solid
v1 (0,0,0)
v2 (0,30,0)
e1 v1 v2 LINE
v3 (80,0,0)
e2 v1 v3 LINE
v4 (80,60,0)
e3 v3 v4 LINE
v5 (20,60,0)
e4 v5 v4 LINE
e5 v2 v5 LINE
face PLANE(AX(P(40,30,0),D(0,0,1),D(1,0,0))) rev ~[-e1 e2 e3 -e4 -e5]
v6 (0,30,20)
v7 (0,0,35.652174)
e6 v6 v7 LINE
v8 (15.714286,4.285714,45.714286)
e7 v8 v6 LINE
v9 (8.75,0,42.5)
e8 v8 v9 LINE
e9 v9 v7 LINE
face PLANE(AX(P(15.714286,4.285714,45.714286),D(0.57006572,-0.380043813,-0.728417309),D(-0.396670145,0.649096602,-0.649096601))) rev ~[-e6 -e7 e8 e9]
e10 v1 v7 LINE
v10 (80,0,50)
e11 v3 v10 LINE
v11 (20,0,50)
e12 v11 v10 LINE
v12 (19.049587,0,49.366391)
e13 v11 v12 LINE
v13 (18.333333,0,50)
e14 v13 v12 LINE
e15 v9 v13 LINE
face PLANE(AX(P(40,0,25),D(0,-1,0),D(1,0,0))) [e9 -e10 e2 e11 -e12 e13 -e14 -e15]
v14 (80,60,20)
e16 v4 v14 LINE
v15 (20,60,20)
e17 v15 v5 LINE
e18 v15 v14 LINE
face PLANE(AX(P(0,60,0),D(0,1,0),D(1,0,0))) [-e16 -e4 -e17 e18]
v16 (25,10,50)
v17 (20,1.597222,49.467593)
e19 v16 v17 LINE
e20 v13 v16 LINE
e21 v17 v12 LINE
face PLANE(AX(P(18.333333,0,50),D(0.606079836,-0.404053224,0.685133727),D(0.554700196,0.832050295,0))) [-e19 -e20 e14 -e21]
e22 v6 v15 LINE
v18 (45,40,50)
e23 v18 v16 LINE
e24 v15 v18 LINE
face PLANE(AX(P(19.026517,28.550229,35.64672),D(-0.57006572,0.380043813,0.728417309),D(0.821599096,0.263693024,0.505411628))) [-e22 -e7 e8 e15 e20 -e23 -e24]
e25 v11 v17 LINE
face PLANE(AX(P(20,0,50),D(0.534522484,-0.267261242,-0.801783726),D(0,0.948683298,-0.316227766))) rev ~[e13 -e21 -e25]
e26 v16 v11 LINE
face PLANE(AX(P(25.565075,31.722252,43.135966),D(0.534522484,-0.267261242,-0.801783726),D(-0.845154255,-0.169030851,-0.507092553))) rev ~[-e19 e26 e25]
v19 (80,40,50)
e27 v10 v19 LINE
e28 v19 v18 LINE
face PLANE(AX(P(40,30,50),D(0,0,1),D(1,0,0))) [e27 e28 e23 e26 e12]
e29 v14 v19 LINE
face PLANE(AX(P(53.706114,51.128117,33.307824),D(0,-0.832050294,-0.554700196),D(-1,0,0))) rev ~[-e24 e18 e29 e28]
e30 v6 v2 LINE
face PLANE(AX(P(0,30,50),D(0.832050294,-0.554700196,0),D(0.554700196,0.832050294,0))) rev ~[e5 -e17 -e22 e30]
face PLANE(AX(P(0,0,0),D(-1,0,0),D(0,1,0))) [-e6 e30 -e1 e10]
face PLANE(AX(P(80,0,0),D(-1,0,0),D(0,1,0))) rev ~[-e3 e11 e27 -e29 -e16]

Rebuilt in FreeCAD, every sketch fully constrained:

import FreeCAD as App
import Part
import Sketcher

doc = App.newDocument("Part")
params = doc.addObject("Spreadsheet::Sheet", "Params")
for row, (alias, value) in enumerate([
    ("sketch1_width", "80 mm"),
    ("sketch1_height", "60 mm"),
    ("pad1_length", "50 mm"),
    ("sketch2_width", "20 mm"),
    ("sketch2_height", "30 mm"),
    ("pocket1_length", "50 mm"),
    ("sketch3_width", "20 mm"),
    ("pocket2_length", "124 mm"),
    ("pocket3_length", "124 mm"),
    ("pocket4_length", "124 mm"),
    ("pocket5_length", "124 mm"),
    ("pocket6_length", "124 mm"),
    ("pocket7_length", "124 mm"),
    ("pocket8_length", "124 mm"),
    ("pocket9_length", "124 mm"),
    ("sketch11_width", "60 mm"),
    ("sketch11_width2", "40 mm"),
    ("pocket10_length", "124 mm"),
    ("pocket11_length", "124 mm"),
    ("pocket12_length", "124 mm"),
    ("pocket13_length", "124 mm"),
    ("pocket14_length", "124 mm"),
    ("pad2_length", "5 mm"),
    ("sketch17_width", "80 mm"),
    ("sketch17_height", "50 mm"),
    ("pocket15_length", "37 mm"),
], start=1):
    params.set(f"A{row}", alias)
    params.set(f"B{row}", "=" + value)
    params.setAlias(f"B{row}", alias)

body = doc.addObject("PartDesign::Body", "Body")
body.AllowCompound = True

# Sketch on XY plane
sketch1 = body.newObject("Sketcher::SketchObject", "Sketch")
sketch1.AttachmentSupport = (doc.getObject("XY_Plane"), [""])
sketch1.MapMode = "FlatFace"
sketch1.addGeometry([
    Part.LineSegment(App.Vector(0, 60, 0), App.Vector(0, 0, 0)),
    Part.LineSegment(App.Vector(0, 0, 0), App.Vector(80, 0, 0)),
    Part.LineSegment(App.Vector(80, 0, 0), App.Vector(80, 60, 0)),
    Part.LineSegment(App.Vector(80, 60, 0), App.Vector(0, 60, 0)),
], False)
sketch1.addConstraint([
    Sketcher.Constraint("Coincident", 0, 2, 1, 1),
    Sketcher.Constraint("Coincident", 1, 2, 2, 1),
    Sketcher.Constraint("Coincident", 2, 2, 3, 1),
    Sketcher.Constraint("Coincident", 3, 2, 0, 1),
    Sketcher.Constraint("Vertical", 0),
    Sketcher.Constraint("Horizontal", 1),
    Sketcher.Constraint("Vertical", 2),
    Sketcher.Constraint("Horizontal", 3),
    Sketcher.Constraint("Coincident", 0, 2, -1, 1),
    Sketcher.Constraint("DistanceX", 1, 1, 1, 2, 80.0),
    Sketcher.Constraint("DistanceY", 0, 2, 0, 1, 60.0),
])
sketch1.setExpression("Constraints[9]", "Params.sketch1_width")
sketch1.setExpression("Constraints[10]", "Params.sketch1_height")
pad1 = body.newObject("PartDesign::Pad", "Pad")
pad1.Profile = sketch1
pad1.setExpression("Length", "Params.pad1_length")

# Sketch on XY plane
sketch2 = body.newObject("Sketcher::SketchObject", "Sketch001")
sketch2.AttachmentSupport = (doc.getObject("XY_Plane"), [""])
sketch2.MapMode = "FlatFace"
sketch2.AttachmentOffset = App.Placement(App.Vector(0, 0, 50), App.Rotation())
sketch2.addGeometry([
    Part.LineSegment(App.Vector(0, 30, 0), App.Vector(20, 60, 0)),
    Part.LineSegment(App.Vector(20, 60, 0), App.Vector(0, 60, 0)),
    Part.LineSegment(App.Vector(0, 60, 0), App.Vector(0, 30, 0)),
], False)
sketch2.addConstraint([
    Sketcher.Constraint("Coincident", 0, 2, 1, 1),
    Sketcher.Constraint("Coincident", 1, 2, 2, 1),
    Sketcher.Constraint("Coincident", 2, 2, 0, 1),
    Sketcher.Constraint("Horizontal", 1),
    Sketcher.Constraint("Vertical", 2),
    Sketcher.Constraint("PointOnObject", 1, 2, -2),
    Sketcher.Constraint("DistanceX", 1, 2, 1, 1, 20.0),
    Sketcher.Constraint("DistanceY", 2, 2, 2, 1, 30.0),
    Sketcher.Constraint("DistanceY", -1, 1, 0, 2, 60.0),
])
sketch2.setExpression("Constraints[6]", "Params.sketch2_width")
sketch2.setExpression("Constraints[7]", "Params.sketch2_height")
pocket1 = body.newObject("PartDesign::Pocket", "Pocket")
pocket1.Profile = sketch2
pocket1.setExpression("Length", "Params.pocket1_length")

# Sketch on YZ plane
sketch3 = body.newObject("Sketcher::SketchObject", "Sketch002")
sketch3.AttachmentSupport = (doc.getObject("YZ_Plane"), [""])
sketch3.MapMode = "FlatFace"
sketch3.AttachmentOffset = App.Placement(App.Vector(0, 0, 80), App.Rotation())
sketch3.addGeometry([
    Part.LineSegment(App.Vector(40, 50, 0), App.Vector(60, 30, 0)),
    Part.LineSegment(App.Vector(60, 30, 0), App.Vector(60, 50, 0)),
    Part.LineSegment(App.Vector(60, 50, 0), App.Vector(40, 50, 0)),
], False)
sketch3.addConstraint([
    Sketcher.Constraint("Coincident", 0, 2, 1, 1),
    Sketcher.Constraint("Coincident", 1, 2, 2, 1),
    Sketcher.Constraint("Coincident", 2, 2, 0, 1),
    Sketcher.Constraint("Vertical", 1),
    Sketcher.Constraint("Horizontal", 2),
    Sketcher.Constraint("Equal", 2, 1),
    Sketcher.Constraint("DistanceX", 2, 2, 2, 1, 20.0),
    Sketcher.Constraint("DistanceX", -1, 1, 0, 2, 60.0),
    Sketcher.Constraint("DistanceY", -1, 1, 0, 2, 30.0),
])
sketch3.setExpression("Constraints[6]", "Params.sketch3_width")
pocket2 = body.newObject("PartDesign::Pocket", "Pocket001")
pocket2.Profile = sketch3
pocket2.setExpression("Length", "Params.pocket2_length")

# Sketch on an angled plane
sketch4 = body.newObject("Sketcher::SketchObject", "Sketch003")
sketch4.Placement = App.Placement(App.Vector(-15.714286, 7.857143, 23.571429), App.Rotation(App.Vector(0.845154255, 0.169030851, 0.507092553), App.Vector(0, 0.948683299, -0.316227766), App.Vector(-0.534522484, 0.267261242, 0.801783726), "ZXY"))
sketch4.addGeometry([
    Part.LineSegment(App.Vector(66, 22, 0), App.Vector(42, 47, 0)),
    Part.LineSegment(App.Vector(42, 47, 0), App.Vector(42, -16, 0)),
    Part.LineSegment(App.Vector(42, -16, 0), App.Vector(66, 22, 0)),
], False)
sketch4.addConstraint([
    Sketcher.Constraint("Coincident", 0, 2, 1, 1),
    Sketcher.Constraint("Coincident", 1, 2, 2, 1),
    Sketcher.Constraint("Coincident", 2, 2, 0, 1),
    Sketcher.Constraint("Vertical", 1),
    Sketcher.Constraint("Distance", 2, 44.72136),
    Sketcher.Constraint("DistanceY", 1, 2, 1, 1, 63.245553),
    Sketcher.Constraint("DistanceY", 1, 2, -1, 1, 15.811388),
    Sketcher.Constraint("DistanceX", -1, 1, 2, 2, 65.922032),
    Sketcher.Constraint("DistanceX", 0, 2, 2, 2, 23.664319),
])
pocket3 = body.newObject("PartDesign::Pocket", "Pocket002")
pocket3.Profile = sketch4
pocket3.setExpression("Length", "Params.pocket3_length")
pocket3.Reversed = True

# Sketch on an angled plane
sketch5 = body.newObject("Sketcher::SketchObject", "Sketch004")
sketch5.Placement = App.Placement(App.Vector(35.714286, 7.142857, 21.428571), App.Rotation(App.Vector(0.497245158, 0.099449032, -0.861891607), App.Vector(-0.196116135, 0.980580676, 0), App.Vector(0.845154255, 0.169030851, 0.507092553), "ZXY"))
sketch5.addGeometry([
    Part.LineSegment(App.Vector(-33, 37, 0), App.Vector(-33, -4, 0)),
    Part.LineSegment(App.Vector(-33, -4, 0), App.Vector(-10, 55, 0)),
    Part.LineSegment(App.Vector(-10, 55, 0), App.Vector(-33, 37, 0)),
], False)
sketch5.addConstraint([
    Sketcher.Constraint("Coincident", 0, 2, 1, 1),
    Sketcher.Constraint("Coincident", 1, 2, 2, 1),
    Sketcher.Constraint("Coincident", 2, 2, 0, 1),
    Sketcher.Constraint("Vertical", 0),
    Sketcher.Constraint("DistanceY", 0, 2, 0, 1, 40.792156),
    Sketcher.Constraint("DistanceY", 0, 2, 1, 2, 58.834841),
    Sketcher.Constraint("Distance", 1, 63.245553),
    Sketcher.Constraint("DistanceX", 0, 2, -1, 1, 33.149677),
    Sketcher.Constraint("DistanceY", 0, 2, -1, 1, 3.922323),
])
pocket4 = body.newObject("PartDesign::Pocket", "Pocket003")
pocket4.Profile = sketch5
pocket4.setExpression("Length", "Params.pocket4_length")

# Sketch on an angled plane
sketch6 = body.newObject("Sketcher::SketchObject", "Sketch005")
sketch6.Placement = App.Placement(App.Vector(-16.483516, -3.296703, 28.571429), App.Rotation(App.Vector(-0.867610081, 0.056996283, -0.493967783), App.Vector(0, 0.993408935, 0.114624108), App.Vector(0.497245158, 0.099449032, -0.861891607), "ZXY"))
sketch6.addGeometry([
    Part.LineSegment(App.Vector(-26, 44, 0), App.Vector(-33, 45, 0)),  # 0
    Part.LineSegment(App.Vector(-33, 45, 0), App.Vector(-42, 6, 0)),  # 1
    Part.LineSegment(App.Vector(-42, 6, 0), App.Vector(-19, 4, 0)),  # 2
    Part.LineSegment(App.Vector(-19, 4, 0), App.Vector(-19, 35, 0)),  # 3
    Part.LineSegment(App.Vector(-19, 35, 0), App.Vector(-26, 44, 0)),  # 4
], False)
sketch6.addConstraint([
    Sketcher.Constraint("Coincident", 0, 2, 1, 1),
    Sketcher.Constraint("Coincident", 1, 2, 2, 1),
    Sketcher.Constraint("Coincident", 2, 2, 3, 1),
    Sketcher.Constraint("Coincident", 3, 2, 4, 1),
    Sketcher.Constraint("Coincident", 4, 2, 0, 1),
    Sketcher.Constraint("Vertical", 3),
    Sketcher.Constraint("Perpendicular", 0, 1),
    Sketcher.Constraint("DistanceY", 3, 2, 0, 2, 10.859899),
    Sketcher.Constraint("Distance", 0, 7.281329),
    Sketcher.Constraint("Distance", 2, 23.08974),
    Sketcher.Constraint("Distance", 4, 11.41498),
    Sketcher.Constraint("DistanceY", 3, 1, 3, 2, 30.199044),
    Sketcher.Constraint("DistanceX", 0, 2, -1, 1, 32.829859),
    Sketcher.Constraint("DistanceX", 1, 2, -1, 1, 42.050591),
    Sketcher.Constraint("DistanceY", -1, 1, 2, 2, 4.40862),
])
pocket5 = body.newObject("PartDesign::Pocket", "Pocket004")
pocket5.Profile = sketch6
pocket5.setExpression("Length", "Params.pocket5_length")

# Sketch on an angled plane
sketch7 = body.newObject("Sketcher::SketchObject", "Sketch006")
sketch7.Placement = App.Placement(App.Vector(-22.751323, 35.26455, 26.164021), App.Rotation(App.Vector(0.887896271, 0.369460193, 0.274115627), App.Vector(0, -0.595846924, 0.803098028), App.Vector(0.460043706, -0.713067745, -0.529050262), "ZXY"))
sketch7.addGeometry([
    Part.LineSegment(App.Vector(39, 16, 0), App.Vector(32, 14, 0)),
    Part.LineSegment(App.Vector(32, 14, 0), App.Vector(48, -12, 0)),
    Part.LineSegment(App.Vector(48, -12, 0), App.Vector(39, 16, 0)),
], False)
sketch7.addConstraint([
    Sketcher.Constraint("Coincident", 0, 2, 1, 1),
    Sketcher.Constraint("Coincident", 1, 2, 2, 1),
    Sketcher.Constraint("Coincident", 2, 2, 0, 1),
    Sketcher.Constraint("Perpendicular", 0, 2),
    Sketcher.Constraint("Distance", 1, 30.282301),
    Sketcher.Constraint("DistanceY", 1, 2, 2, 2, 27.978899),
    Sketcher.Constraint("Distance", 0, 7.281329),
    Sketcher.Constraint("DistanceY", -1, 1, 0, 2, 14.089089),
    Sketcher.Constraint("DistanceX", -1, 1, 0, 2, 32.208128),
])
pocket6 = body.newObject("PartDesign::Pocket", "Pocket005")
pocket6.Profile = sketch7
pocket6.setExpression("Length", "Params.pocket6_length")

# Sketch on an angled plane
sketch8 = body.newObject("Sketcher::SketchObject", "Sketch007")
sketch8.Placement = App.Placement(App.Vector(-0.962963, -2.407407, 2.407407), App.Rotation(App.Vector(0.962250449, -0.19245009, 0.19245009), App.Vector(0, -0.707106781, -0.707106781), App.Vector(0.272165527, 0.680413817, -0.680413817), "ZXY"))
sketch8.addGeometry([
    Part.LineSegment(App.Vector(7.1, -60.2, 0), App.Vector(8.6, -63.6, 0)),
    Part.LineSegment(App.Vector(8.6, -63.6, 0), App.Vector(13.5, -63.6, 0)),
    Part.LineSegment(App.Vector(13.5, -63.6, 0), App.Vector(7.1, -60.2, 0)),
], False)
sketch8.addConstraint([
    Sketcher.Constraint("Coincident", 0, 2, 1, 1),
    Sketcher.Constraint("Coincident", 1, 2, 2, 1),
    Sketcher.Constraint("Coincident", 2, 2, 0, 1),
    Sketcher.Constraint("Horizontal", 1),
    Sketcher.Constraint("Distance", 0, 3.792449),
    Sketcher.Constraint("Distance", 2, 7.281329),
    Sketcher.Constraint("DistanceX", 1, 1, 1, 2, 4.890496),
    Sketcher.Constraint("DistanceX", -1, 1, 0, 2, 8.58101),
    Sketcher.Constraint("DistanceY", 0, 2, -1, 1, 63.63961),
])
pocket7 = body.newObject("PartDesign::Pocket", "Pocket006")
pocket7.Profile = sketch8
pocket7.setExpression("Length", "Params.pocket7_length")

# Sketch on an angled plane
sketch9 = body.newObject("Sketcher::SketchObject", "Sketch008")
sketch9.Placement = App.Placement(App.Vector(-15.346075, 7.943851, 1.805421), App.Rotation(App.Vector(-0.092282328, 0.047769676, -0.994586361), App.Vector(0.459707125, 0.888070582, 0), App.Vector(0.883262889, -0.457218437, -0.103913281), "ZXY"))
sketch9.addGeometry([
    Part.LineSegment(App.Vector(-44.7, 37.1, 0), App.Vector(-47.5, 39.7, 0)),
    Part.LineSegment(App.Vector(-47.5, 39.7, 0), App.Vector(-48.5, 38.7, 0)),
    Part.LineSegment(App.Vector(-48.5, 38.7, 0), App.Vector(-48.5, 37.4, 0)),
    Part.LineSegment(App.Vector(-48.5, 37.4, 0), App.Vector(-44.7, 37.1, 0)),
], False)
sketch9.addConstraint([
    Sketcher.Constraint("Coincident", 0, 2, 1, 1),
    Sketcher.Constraint("Coincident", 1, 2, 2, 1),
    Sketcher.Constraint("Coincident", 2, 2, 3, 1),
    Sketcher.Constraint("Coincident", 3, 2, 0, 1),
    Sketcher.Constraint("Vertical", 2),
    Sketcher.Constraint("Perpendicular", 0, 1),
    Sketcher.Constraint("DistanceX", 1, 2, 0, 2, 0.946299),
    Sketcher.Constraint("Distance", 0, 3.792449),
    Sketcher.Constraint("Distance", 1, 1.383241),
    Sketcher.Constraint("DistanceY", 2, 2, 2, 1, 1.276766),
    Sketcher.Constraint("DistanceX", 0, 2, -1, 1, 47.510608),
    Sketcher.Constraint("DistanceY", -1, 1, 2, 2, 37.426149),
])
pocket8 = body.newObject("PartDesign::Pocket", "Pocket007")
pocket8.Profile = sketch9
pocket8.setExpression("Length", "Params.pocket8_length")

# Sketch on an angled plane
sketch10 = body.newObject("Sketcher::SketchObject", "Sketch009")
sketch10.Placement = App.Placement(App.Vector(-7.230769, 36.153846, 0), App.Rotation(App.Vector(0.980580676, 0.196116135, 0), App.Vector(0, 0, 1.000000001), App.Vector(0.196116135, -0.980580676, 0), "ZXY"))
sketch10.addGeometry([
    Part.LineSegment(App.Vector(13.83, 50, 0), App.Vector(13.34, 50, 0)),
    Part.LineSegment(App.Vector(13.34, 50, 0), App.Vector(13.34, 46.31, 0)),
    Part.LineSegment(App.Vector(13.34, 46.31, 0), App.Vector(13.83, 50, 0)),
], False)
sketch10.addConstraint([
    Sketcher.Constraint("Coincident", 0, 2, 1, 1),
    Sketcher.Constraint("Coincident", 1, 2, 2, 1),
    Sketcher.Constraint("Coincident", 2, 2, 0, 1),
    Sketcher.Constraint("Horizontal", 0),
    Sketcher.Constraint("Vertical", 1),
    Sketcher.Constraint("DistanceY", -1, 1, 0, 2, 50.0),
    Sketcher.Constraint("DistanceX", 0, 2, 0, 1, 0.494151),
    Sketcher.Constraint("DistanceY", 1, 2, 1, 1, 3.692308),
    Sketcher.Constraint("DistanceX", -1, 1, 2, 2, 13.830048),
])
pocket9 = body.newObject("PartDesign::Pocket", "Pocket008")
pocket9.Profile = sketch10
pocket9.setExpression("Length", "Params.pocket9_length")

# Sketch on an angled plane
sketch11 = body.newObject("Sketcher::SketchObject", "Sketch010")
sketch11.Placement = App.Placement(App.Vector(0, 50.769231, 33.846154), App.Rotation(App.Vector(-1, 0, 0), App.Vector(0, 0.554700196, -0.832050294), App.Vector(0, -0.832050294, -0.554700196), "ZXY"))
sketch11.addGeometry([
    Part.LineSegment(App.Vector(-20, 17, 0), App.Vector(-80, 17, 0)),
    Part.LineSegment(App.Vector(-80, 17, 0), App.Vector(-80, -19, 0)),
    Part.LineSegment(App.Vector(-80, -19, 0), App.Vector(-40, -19, 0)),
    Part.LineSegment(App.Vector(-40, -19, 0), App.Vector(-20, 17, 0)),
], False)
sketch11.addConstraint([
    Sketcher.Constraint("Coincident", 0, 2, 1, 1),
    Sketcher.Constraint("Coincident", 1, 2, 2, 1),
    Sketcher.Constraint("Coincident", 2, 2, 3, 1),
    Sketcher.Constraint("Coincident", 3, 2, 0, 1),
    Sketcher.Constraint("Horizontal", 0),
    Sketcher.Constraint("Vertical", 1),
    Sketcher.Constraint("Horizontal", 2),
    Sketcher.Constraint("DistanceX", 0, 2, 0, 1, 60.0),
    Sketcher.Constraint("DistanceX", 2, 1, 2, 2, 40.0),
    Sketcher.Constraint("DistanceX", 0, 2, -1, 1, 80.0),
    Sketcher.Constraint("DistanceY", 1, 2, 1, 1, 36.055513),
    Sketcher.Constraint("DistanceY", -1, 1, 0, 2, 16.641006),
])
sketch11.setExpression("Constraints[7]", "Params.sketch11_width")
sketch11.setExpression("Constraints[8]", "Params.sketch11_width2")
pocket10 = body.newObject("PartDesign::Pocket", "Pocket009")
pocket10.Profile = sketch11
pocket10.setExpression("Length", "Params.pocket10_length")

# Sketch on an angled plane
sketch12 = body.newObject("Sketcher::SketchObject", "Sketch011")
sketch12.Placement = App.Placement(App.Vector(22.352941, 6.877828, -10.316742), App.Rotation(App.Vector(-0.385755921, -0.11869413, -0.914933917), App.Vector(-0.294085849, 0.955779008, 0), App.Vector(0.874474632, 0.269069118, -0.403603676), "ZXY"))
sketch12.addGeometry([
    Part.LineSegment(App.Vector(-33.135445, 51.465024, 0), App.Vector(-44.065196, 50.107704, 0)),
    Part.LineSegment(App.Vector(-44.065196, 50.107704, 0), App.Vector(-65.924698, 26.467726, 0)),
    Part.LineSegment(App.Vector(-65.924698, 26.467726, 0), App.Vector(-33.135445, 51.465024, 0)),
], False)
sketch12.addConstraint([
    Sketcher.Constraint("Coincident", 0, 2, 1, 1),
    Sketcher.Constraint("Coincident", 1, 2, 2, 1),
    Sketcher.Constraint("Coincident", 2, 2, 0, 1),
    Sketcher.Constraint("Distance", 0, 11.013709),
    Sketcher.Constraint("DistanceX", 0, 2, 2, 2, 10.929751),
    Sketcher.Constraint("Distance", 1, 32.197615),
    Sketcher.Constraint("Distance", 2, 41.231056),
    Sketcher.Constraint("DistanceX", 0, 2, -1, 1, 44.065196),
    Sketcher.Constraint("DistanceY", -1, 1, 0, 2, 50.107704),
])
pocket11 = body.newObject("PartDesign::Pocket", "Pocket010")
pocket11.Profile = sketch12
pocket11.setExpression("Length", "Params.pocket11_length")

# Sketch on an angled plane
sketch13 = body.newObject("Sketcher::SketchObject", "Sketch012")
sketch13.Placement = App.Placement(App.Vector(-13.474892, 53.122172, 6.219181), App.Rotation(App.Vector(0.969698736, 0.242646616, 0.028407409), App.Vector(0, -0.116279015, 0.993216588), App.Vector(0.24430383, -0.96312087, -0.112755614), "ZXY"))
sketch13.addGeometry([
    Part.LineSegment(App.Vector(34.5, 12.9, 0), App.Vector(39.3, 22.8, 0)),
    Part.LineSegment(App.Vector(39.3, 22.8, 0), App.Vector(35.6, 24, 0)),
    Part.LineSegment(App.Vector(35.6, 24, 0), App.Vector(33.6, 22.8, 0)),
    Part.LineSegment(App.Vector(33.6, 22.8, 0), App.Vector(34.5, 12.9, 0)),
], False)
sketch13.addConstraint([
    Sketcher.Constraint("Coincident", 0, 2, 1, 1),
    Sketcher.Constraint("Coincident", 1, 2, 2, 1),
    Sketcher.Constraint("Coincident", 2, 2, 3, 1),
    Sketcher.Constraint("Coincident", 3, 2, 0, 1),
    Sketcher.Constraint("Distance", 0, 11.013709),
    Sketcher.Constraint("Distance", 2, 2.31334),
    Sketcher.Constraint("Distance", 3, 9.986031),
    Sketcher.Constraint("DistanceX", -1, 1, 1, 2, 35.58315),
    Sketcher.Constraint("DistanceY", -1, 1, 2, 2, 22.827972),
    Sketcher.Constraint("DistanceX", -1, 1, 3, 2, 34.52092),
    Sketcher.Constraint("DistanceY", -1, 1, 3, 2, 12.887591),
    Sketcher.Constraint("DistanceY", 0, 2, 1, 2, 1.142828),
])
pocket12 = body.newObject("PartDesign::Pocket", "Pocket011")
pocket12.Profile = sketch13
pocket12.setExpression("Length", "Params.pocket12_length")

# Sketch on an angled plane
sketch14 = body.newObject("Sketcher::SketchObject", "Sketch013")
sketch14.Placement = App.Placement(App.Vector(-14.804413, 9.869609, 18.91675), App.Rotation(App.Vector(0.821599096, 0.263693024, 0.505411628), App.Vector(-0.000000001, 0.886584846, -0.462566007), App.Vector(-0.57006572, 0.380043813, 0.728417309), "ZXY"))
sketch14.addGeometry([
    Part.LineSegment(App.Vector(73, 12, 0), App.Vector(42, 44, 0)),
    Part.LineSegment(App.Vector(42, 44, 0), App.Vector(18, 17, 0)),
    Part.LineSegment(App.Vector(18, 17, 0), App.Vector(40, -23, 0)),
    Part.LineSegment(App.Vector(40, -23, 0), App.Vector(73, 12, 0)),
], False)
sketch14.addConstraint([
    Sketcher.Constraint("Coincident", 0, 2, 1, 1),
    Sketcher.Constraint("Coincident", 1, 2, 2, 1),
    Sketcher.Constraint("Coincident", 2, 2, 3, 1),
    Sketcher.Constraint("Coincident", 3, 2, 0, 1),
    Sketcher.Constraint("Parallel", 1, 3),
    Sketcher.Constraint("DistanceY", 2, 2, -1, 1, 23.1283),
    Sketcher.Constraint("Distance", 0, 43.874822),
    Sketcher.Constraint("DistanceY", -1, 1, 0, 2, 43.943771),
    Sketcher.Constraint("DistanceX", -1, 1, 2, 2, 40.333231),
    Sketcher.Constraint("DistanceX", -1, 1, 3, 2, 72.790262),
    Sketcher.Constraint("DistanceX", 1, 2, 2, 2, 22.314208),
    Sketcher.Constraint("DistanceY", 3, 2, 1, 2, 5.011132),
])
pocket13 = body.newObject("PartDesign::Pocket", "Pocket012")
pocket13.Profile = sketch14
pocket13.setExpression("Length", "Params.pocket13_length")
pocket13.Reversed = True

# Sketch on an angled plane
sketch15 = body.newObject("Sketcher::SketchObject", "Sketch014")
sketch15.Placement = App.Placement(App.Vector(17.379186, 15.917127, 5.296514), App.Rotation(App.Vector(0.161703891, 0.148100231, -0.97566294), App.Vector(-0.67540653, 0.737445604, 0), App.Vector(0.719498347, 0.658969121, 0.219275687), "ZXY"))
sketch15.addGeometry([
    Part.LineSegment(App.Vector(-15, 22, 0), App.Vector(-23, 20, 0)),
    Part.LineSegment(App.Vector(-23, 20, 0), App.Vector(-41, -7, 0)),
    Part.LineSegment(App.Vector(-41, -7, 0), App.Vector(-15, 22, 0)),
], False)
sketch15.addConstraint([
    Sketcher.Constraint("Coincident", 0, 2, 1, 1),
    Sketcher.Constraint("Coincident", 1, 2, 2, 1),
    Sketcher.Constraint("Coincident", 2, 2, 0, 1),
    Sketcher.Constraint("Distance", 2, 39.615499),
    Sketcher.Constraint("DistanceY", 1, 2, -1, 1, 7.45305),
    Sketcher.Constraint("DistanceX", 2, 2, -1, 1, 15.070252),
    Sketcher.Constraint("DistanceY", -1, 1, 2, 2, 22.123368),
    Sketcher.Constraint("DistanceX", 1, 2, 0, 2, 18.67029),
    Sketcher.Constraint("DistanceY", 0, 2, 2, 2, 1.84002),
])
pocket14 = body.newObject("PartDesign::Pocket", "Pocket013")
pocket14.Profile = sketch15
pocket14.setExpression("Length", "Params.pocket14_length")

# Sketch on an angled plane
sketch16 = body.newObject("Sketcher::SketchObject", "Sketch015")
sketch16.Placement = App.Placement(App.Vector(-14.804413, 9.869609, 18.91675), App.Rotation(App.Vector(0.821599096, 0.263693024, 0.505411628), App.Vector(-0.000000001, 0.886584846, -0.462566007), App.Vector(-0.57006572, 0.380043813, 0.728417309), "ZXY"))
sketch16.addGeometry([
    Part.LineSegment(App.Vector(18, -16, 0), App.Vector(40, -23, 0)),  # 0
    Part.LineSegment(App.Vector(40, -23, 0), App.Vector(73, 12, 0)),  # 1
    Part.LineSegment(App.Vector(73, 12, 0), App.Vector(42, 44, 0)),  # 2
    Part.LineSegment(App.Vector(42, 44, 0), App.Vector(18, 17, 0)),  # 3
    Part.LineSegment(App.Vector(18, 17, 0), App.Vector(18, -16, 0)),  # 4
], False)
sketch16.addConstraint([
    Sketcher.Constraint("Coincident", 0, 2, 1, 1),
    Sketcher.Constraint("Coincident", 1, 2, 2, 1),
    Sketcher.Constraint("Coincident", 2, 2, 3, 1),
    Sketcher.Constraint("Coincident", 3, 2, 4, 1),
    Sketcher.Constraint("Coincident", 4, 2, 0, 1),
    Sketcher.Constraint("Vertical", 4),
    Sketcher.Constraint("Parallel", 1, 3),
    Sketcher.Constraint("DistanceY", 4, 2, 4, 1, 33.837709),
    Sketcher.Constraint("DistanceY", 0, 2, -1, 1, 23.1283),
    Sketcher.Constraint("Distance", 2, 43.874822),
    Sketcher.Constraint("DistanceX", -1, 1, 0, 2, 40.333231),
    Sketcher.Constraint("DistanceX", -1, 1, 1, 2, 72.790262),
    Sketcher.Constraint("DistanceY", -1, 1, 2, 2, 43.943771),
    Sketcher.Constraint("DistanceX", 3, 2, 0, 2, 22.314208),
    Sketcher.Constraint("DistanceY", 1, 2, 3, 2, 5.011132),
])
pad2 = body.newObject("PartDesign::Pad", "Pad001")
pad2.Profile = sketch16
pad2.setExpression("Length", "Params.pad2_length")
pad2.Reversed = True

# Sketch on XZ plane
sketch17 = body.newObject("Sketcher::SketchObject", "Sketch016")
sketch17.AttachmentSupport = (doc.getObject("XZ_Plane"), [""])
sketch17.MapMode = "FlatFace"
sketch17.addGeometry([
    Part.LineSegment(App.Vector(0, 50, 0), App.Vector(0, 0, 0)),
    Part.LineSegment(App.Vector(0, 0, 0), App.Vector(80, 0, 0)),
    Part.LineSegment(App.Vector(80, 0, 0), App.Vector(80, 50, 0)),
    Part.LineSegment(App.Vector(80, 50, 0), App.Vector(0, 50, 0)),
], False)
sketch17.addConstraint([
    Sketcher.Constraint("Coincident", 0, 2, 1, 1),
    Sketcher.Constraint("Coincident", 1, 2, 2, 1),
    Sketcher.Constraint("Coincident", 2, 2, 3, 1),
    Sketcher.Constraint("Coincident", 3, 2, 0, 1),
    Sketcher.Constraint("Vertical", 0),
    Sketcher.Constraint("Horizontal", 1),
    Sketcher.Constraint("Vertical", 2),
    Sketcher.Constraint("Horizontal", 3),
    Sketcher.Constraint("Coincident", 0, 2, -1, 1),
    Sketcher.Constraint("DistanceX", 1, 1, 1, 2, 80.0),
    Sketcher.Constraint("DistanceY", 0, 2, 0, 1, 50.0),
])
sketch17.setExpression("Constraints[9]", "Params.sketch17_width")
sketch17.setExpression("Constraints[10]", "Params.sketch17_height")
pocket15 = body.newObject("PartDesign::Pocket", "Pocket014")
pocket15.Profile = sketch17
pocket15.setExpression("Length", "Params.pocket15_length")
pocket15.Reversed = True

doc.recompute()
